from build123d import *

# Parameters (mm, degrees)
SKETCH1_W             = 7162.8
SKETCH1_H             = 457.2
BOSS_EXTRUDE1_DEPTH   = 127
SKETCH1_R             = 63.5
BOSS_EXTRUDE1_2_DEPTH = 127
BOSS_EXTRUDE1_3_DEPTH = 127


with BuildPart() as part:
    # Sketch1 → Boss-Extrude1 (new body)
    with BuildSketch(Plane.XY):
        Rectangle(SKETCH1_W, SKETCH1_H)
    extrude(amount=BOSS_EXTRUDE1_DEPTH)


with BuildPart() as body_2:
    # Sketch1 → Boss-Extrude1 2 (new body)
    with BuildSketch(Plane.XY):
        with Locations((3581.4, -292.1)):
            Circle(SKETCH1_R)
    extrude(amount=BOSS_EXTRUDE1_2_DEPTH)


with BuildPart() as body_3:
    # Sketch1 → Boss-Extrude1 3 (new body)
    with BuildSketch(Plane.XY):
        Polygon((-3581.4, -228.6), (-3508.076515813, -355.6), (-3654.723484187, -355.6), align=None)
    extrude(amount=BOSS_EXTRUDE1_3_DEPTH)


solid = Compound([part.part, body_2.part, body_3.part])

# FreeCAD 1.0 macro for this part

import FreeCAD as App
import Part
import Sketcher
from FreeCAD import Vector
Q = App.Units.Quantity

doc = App.newDocument("Part")
body = doc.addObject("PartDesign::Body", "Body")

# Sketch on XY plane
sketch1 = body.newObject("Sketcher::SketchObject", "Sketch")
sketch1.AttachmentSupport = (doc.getObject("XY_Plane"), [""])
sketch1.MapMode = "FlatFace"
sketch1.addGeometry([
    Part.LineSegment(Vector(-3581, 229, 0), Vector(-3581, -229, 0)),
    Part.LineSegment(Vector(-3581, -229, 0), Vector(3581, -229, 0)),
    Part.LineSegment(Vector(3581, -229, 0), Vector(3581, 229, 0)),
    Part.LineSegment(Vector(3581, 229, 0), Vector(-3581, 229, 0)),
], False)
sketch1.addConstraint([
    Sketcher.Constraint("Coincident", 0, 2, 1, 1),
    Sketcher.Constraint("Coincident", 1, 2, 2, 1),
    Sketcher.Constraint("Coincident", 2, 2, 3, 1),
    Sketcher.Constraint("Coincident", 3, 2, 0, 1),
    Sketcher.Constraint("Vertical", 0),
    Sketcher.Constraint("Horizontal", 1),
    Sketcher.Constraint("Vertical", 2),
    Sketcher.Constraint("Horizontal", 3),
    Sketcher.Constraint("Symmetric", 0, 2, 2, 2, -1, 1),
    Sketcher.Constraint("DistanceX", 1, 1, 1, 2, Q("282 in")),
    Sketcher.Constraint("DistanceY", 0, 2, 0, 1, Q("18 in")),
])
pad1 = body.newObject("PartDesign::Pad", "Pad")
pad1.Profile = sketch1
pad1.Length = Q("5 in")
body2 = doc.addObject("PartDesign::Body", "Body001")

# Sketch on XY plane
sketch2 = body2.newObject("Sketcher::SketchObject", "Sketch001")
sketch2.AttachmentSupport = (doc.getObject("XY_Plane001"), [""])
sketch2.MapMode = "FlatFace"
sketch2.addGeometry(Part.Circle(Vector(3581, -292, 0), Vector(0, 0, 1), 64), False)
sketch2.addConstraint([
    Sketcher.Constraint("Diameter", 0, Q("5 in")),
    Sketcher.Constraint("DistanceX", -1, 1, 0, 3, Q("141 in")),
    Sketcher.Constraint("DistanceY", 0, 3, -1, 1, Q("11.5 in")),
])
pad2 = body2.newObject("PartDesign::Pad", "Pad001")
pad2.Profile = sketch2
pad2.Length = Q("5 in")
body3 = doc.addObject("PartDesign::Body", "Body002")

# Sketch on XY plane
sketch3 = body3.newObject("Sketcher::SketchObject", "Sketch002")
sketch3.AttachmentSupport = (doc.getObject("XY_Plane002"), [""])
sketch3.MapMode = "FlatFace"
sketch3.addGeometry([
    Part.LineSegment(Vector(-3508, -356, 0), Vector(-3581, -229, 0)),
    Part.LineSegment(Vector(-3581, -229, 0), Vector(-3655, -356, 0)),
    Part.LineSegment(Vector(-3655, -356, 0), Vector(-3508, -356, 0)),
], False)
sketch3.addConstraint([
    Sketcher.Constraint("Coincident", 0, 2, 1, 1),
    Sketcher.Constraint("Coincident", 1, 2, 2, 1),
    Sketcher.Constraint("Coincident", 2, 2, 0, 1),
    Sketcher.Constraint("Horizontal", 2),
    Sketcher.Constraint("Equal", 0, 1),
    Sketcher.Constraint("DistanceX", 0, 2, -1, 1, Q("141 in")),
    Sketcher.Constraint("DistanceY", 0, 2, -1, 1, Q("9 in")),
    Sketcher.Constraint("DistanceY", 1, 2, -1, 1, Q("14 in")),
    Sketcher.Constraint("Angle", 0, Q("120 deg")),
])
pad3 = body3.newObject("PartDesign::Pad", "Pad002")
pad3.Profile = sketch3
pad3.Length = Q("5 in")

doc.recompute()
